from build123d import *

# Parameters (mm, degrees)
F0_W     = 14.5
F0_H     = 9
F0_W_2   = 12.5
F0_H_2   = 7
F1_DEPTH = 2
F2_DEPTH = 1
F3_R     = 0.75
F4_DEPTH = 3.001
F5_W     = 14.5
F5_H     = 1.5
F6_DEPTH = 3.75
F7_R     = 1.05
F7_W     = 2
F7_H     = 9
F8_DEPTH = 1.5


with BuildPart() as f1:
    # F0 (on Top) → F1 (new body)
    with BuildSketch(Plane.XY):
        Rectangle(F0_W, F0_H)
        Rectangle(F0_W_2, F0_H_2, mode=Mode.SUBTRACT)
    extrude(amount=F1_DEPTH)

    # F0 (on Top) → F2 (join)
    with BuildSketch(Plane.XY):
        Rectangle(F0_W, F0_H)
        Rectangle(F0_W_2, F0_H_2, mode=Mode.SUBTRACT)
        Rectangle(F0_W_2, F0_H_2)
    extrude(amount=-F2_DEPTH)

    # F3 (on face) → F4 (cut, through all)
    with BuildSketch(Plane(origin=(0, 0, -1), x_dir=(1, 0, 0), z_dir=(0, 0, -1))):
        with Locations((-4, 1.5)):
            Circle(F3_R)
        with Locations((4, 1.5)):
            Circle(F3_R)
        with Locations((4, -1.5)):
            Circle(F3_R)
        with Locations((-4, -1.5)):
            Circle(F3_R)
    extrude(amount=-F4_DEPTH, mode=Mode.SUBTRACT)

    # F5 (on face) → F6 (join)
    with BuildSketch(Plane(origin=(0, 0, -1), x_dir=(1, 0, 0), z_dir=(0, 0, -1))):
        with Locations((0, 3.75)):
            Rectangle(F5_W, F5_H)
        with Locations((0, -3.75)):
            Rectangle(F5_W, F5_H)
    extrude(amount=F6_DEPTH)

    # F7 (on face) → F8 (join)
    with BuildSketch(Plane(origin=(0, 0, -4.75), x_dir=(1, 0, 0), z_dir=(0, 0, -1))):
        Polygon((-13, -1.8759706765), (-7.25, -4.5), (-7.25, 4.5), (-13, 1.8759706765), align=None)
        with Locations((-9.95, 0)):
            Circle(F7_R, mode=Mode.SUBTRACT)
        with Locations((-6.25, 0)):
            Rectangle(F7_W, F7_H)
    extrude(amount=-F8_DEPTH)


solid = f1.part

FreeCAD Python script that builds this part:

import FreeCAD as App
import Part
import Sketcher
from FreeCAD import Vector


def add_polygon(sketch, points):
    """Adds a closed chain of lines whose ends are joined by coincident constraints."""
    first, n = sketch.GeometryCount, len(points)
    for a, b in zip(points, points[1:] + points[:1]):
        sketch.addGeometry(Part.LineSegment(App.Vector(*a, 0), App.Vector(*b, 0)), False)
    for i in range(n):
        sketch.addConstraint(Sketcher.Constraint("Coincident", first + i, 2, first + (i + 1) % n, 1))

doc = App.newDocument("Part")
body = doc.addObject("PartDesign::Body", "Body")

sketch1 = body.newObject("Sketcher::SketchObject", "Sketch")
sketch1.AttachmentSupport = (doc.getObject("XY_Plane"), [""])
sketch1.MapMode = "FlatFace"
add_polygon(sketch1, [(-7, 4), (-7, -4), (7, -4), (7, 4)])
add_polygon(sketch1, [(6, -4), (-6, -4), (-6, 4), (6, 4)])
sketch1.addConstraint([
    Sketcher.Constraint("Vertical", 0),
    Sketcher.Constraint("Horizontal", 1),
    Sketcher.Constraint("Vertical", 2),
    Sketcher.Constraint("Horizontal", 3),
    Sketcher.Constraint("Horizontal", 4),
    Sketcher.Constraint("Vertical", 5),
    Sketcher.Constraint("Horizontal", 6),
    Sketcher.Constraint("Vertical", 7),
    Sketcher.Constraint("Symmetric", 0, 2, 2, 2, -1, 1),
    Sketcher.Constraint("Symmetric", 4, 2, 6, 2, -1, 1),
    Sketcher.Constraint("DistanceY", 0, 2, 0, 1, 9.0),
    Sketcher.Constraint("DistanceY", 5, 1, 5, 2, 7.0),
    Sketcher.Constraint("DistanceX", 1, 1, 1, 2, 14.5),
    Sketcher.Constraint("DistanceX", 4, 2, 4, 1, 12.5),
])
pad1 = body.newObject("PartDesign::Pad", "Pad")
pad1.Profile = sketch1
pad1.Length = 2

sketch2 = body.newObject("Sketcher::SketchObject", "Sketch001")
sketch2.AttachmentSupport = (doc.getObject("XY_Plane"), [""])
sketch2.MapMode = "FlatFace"
add_polygon(sketch2, [(-7, 4), (-7, -4), (7, -4), (7, 4)])
sketch2.addConstraint([
    Sketcher.Constraint("Vertical", 0),
    Sketcher.Constraint("Horizontal", 1),
    Sketcher.Constraint("Vertical", 2),
    Sketcher.Constraint("Horizontal", 3),
    Sketcher.Constraint("Symmetric", 0, 2, 2, 2, -1, 1),
    Sketcher.Constraint("DistanceY", 0, 2, 0, 1, 9.0),
    Sketcher.Constraint("DistanceX", 1, 1, 1, 2, 14.5),
])
pad2 = body.newObject("PartDesign::Pad", "Pad001")
pad2.Profile = sketch2
pad2.Length = 1
pad2.Reversed = True

sketch3 = body.newObject("Sketcher::SketchObject", "Sketch002")
sketch3.AttachmentSupport = (doc.getObject("XY_Plane"), [""])
sketch3.MapMode = "FlatFace"
sketch3.AttachmentOffset = App.Placement(Vector(0, 0, -1), App.Rotation())
sketch3.addGeometry([
    Part.Circle(Vector(-4, -1.5, 0), Vector(0, 0, 1), 0.8),
    Part.Circle(Vector(4, -1.5, 0), Vector(0, 0, 1), 0.8),
    Part.Circle(Vector(4, 1.5, 0), Vector(0, 0, 1), 0.8),
    Part.Circle(Vector(-4, 1.5, 0), Vector(0, 0, 1), 0.8),
], False)
sketch3.addConstraint([
    Sketcher.Constraint("Equal", 0, 1),
    Sketcher.Constraint("Equal", 1, 2),
    Sketcher.Constraint("Equal", 2, 3),
    Sketcher.Constraint("Symmetric", 0, 3, 2, 3, -1, 1),
    Sketcher.Constraint("Symmetric", 1, 3, 3, 3, -1, 1),
    Sketcher.Constraint("Symmetric", 0, 3, 1, 3, -2),
    Sketcher.Constraint("Diameter", 0, 1.5),
    Sketcher.Constraint("DistanceX", 0, 3, -1, 1, 4.0),
    Sketcher.Constraint("DistanceY", 1, 3, 2, 3, 3.0),
])
pocket1 = body.newObject("PartDesign::Pocket", "Pocket")
pocket1.Profile = sketch3
pocket1.Type = "ThroughAll"
pocket1.Reversed = True

sketch4 = body.newObject("Sketcher::SketchObject", "Sketch003")
sketch4.AttachmentSupport = (doc.getObject("XY_Plane"), [""])
sketch4.MapMode = "FlatFace"
sketch4.AttachmentOffset = App.Placement(Vector(0, 0, -1), App.Rotation())
add_polygon(sketch4, [(-7.2, -4.5), (-7.2, -3), (7.2, -3), (7.2, -4.5)])
add_polygon(sketch4, [(-7.2, 3), (-7.2, 4.5), (7.2, 4.5), (7.2, 3)])
sketch4.addConstraint([
    Sketcher.Constraint("Vertical", 0),
    Sketcher.Constraint("Horizontal", 1),
    Sketcher.Constraint("Vertical", 2),
    Sketcher.Constraint("Horizontal", 3),
    Sketcher.Constraint("Vertical", 4),
    Sketcher.Constraint("Horizontal", 5),
    Sketcher.Constraint("Vertical", 6),
    Sketcher.Constraint("Horizontal", 7),
    Sketcher.Constraint("Symmetric", 2, 2, 4, 2, -1, 1),
    Sketcher.Constraint("Symmetric", 0, 2, 6, 2, -1, 1),
    Sketcher.Constraint("Vertical", 3, 2, 4, 2),
    Sketcher.Constraint("DistanceX", 1, 1, 1, 2, 14.5),
    Sketcher.Constraint("DistanceY", 0, 1, 0, 2, 1.5),
    Sketcher.Constraint("DistanceY", 0, 2, -1, 1, 3.0),
])
pad3 = body.newObject("PartDesign::Pad", "Pad002")
pad3.Profile = sketch4
pad3.Length = 3.75
pad3.Reversed = True

sketch5 = body.newObject("Sketcher::SketchObject", "Sketch004")
sketch5.AttachmentSupport = (doc.getObject("XY_Plane"), [""])
sketch5.MapMode = "FlatFace"
sketch5.AttachmentOffset = App.Placement(Vector(0, 0, -4.75), App.Rotation())
add_polygon(sketch5, [(-13, 1.9), (-7.2, 4.5), (-5.2, 4.5), (-5.2, -4.5), (-7.2, -4.5), (-13, -1.9)])
sketch5.addGeometry(Part.Circle(Vector(-9.9, 0, 0), Vector(0, 0, 1), 1.1), False)
sketch5.addConstraint([
    Sketcher.Constraint("Horizontal", 1),
    Sketcher.Constraint("Vertical", 2),
    Sketcher.Constraint("Horizontal", 3),
    Sketcher.Constraint("Vertical", 5),
    Sketcher.Constraint("Symmetric", 0, 2, 3, 2, -1),
    Sketcher.Constraint("PointOnObject", 6, 3, -1),
    Sketcher.Constraint("Equal", 0, 4),
    Sketcher.Constraint("Diameter", 6, 2.1),
    Sketcher.Constraint("DistanceX", 1, 1, 1, 2, 2.0),
    Sketcher.Constraint("DistanceY", 2, 2, 2, 1, 9.0),
    Sketcher.Constraint("DistanceX", 4, 2, -1, 1, 13.0),
    Sketcher.Constraint("DistanceX", 6, 3, 0, 2, 2.7),
    Sketcher.Constraint("DistanceX", 6, 3, -1, 1, 9.95),
    Sketcher.Constraint("DistanceY", 5, 1, 5, 2, 3.751941),
])
pad4 = body.newObject("PartDesign::Pad", "Pad003")
pad4.Profile = sketch5
pad4.Length = 1.5

doc.recompute()
